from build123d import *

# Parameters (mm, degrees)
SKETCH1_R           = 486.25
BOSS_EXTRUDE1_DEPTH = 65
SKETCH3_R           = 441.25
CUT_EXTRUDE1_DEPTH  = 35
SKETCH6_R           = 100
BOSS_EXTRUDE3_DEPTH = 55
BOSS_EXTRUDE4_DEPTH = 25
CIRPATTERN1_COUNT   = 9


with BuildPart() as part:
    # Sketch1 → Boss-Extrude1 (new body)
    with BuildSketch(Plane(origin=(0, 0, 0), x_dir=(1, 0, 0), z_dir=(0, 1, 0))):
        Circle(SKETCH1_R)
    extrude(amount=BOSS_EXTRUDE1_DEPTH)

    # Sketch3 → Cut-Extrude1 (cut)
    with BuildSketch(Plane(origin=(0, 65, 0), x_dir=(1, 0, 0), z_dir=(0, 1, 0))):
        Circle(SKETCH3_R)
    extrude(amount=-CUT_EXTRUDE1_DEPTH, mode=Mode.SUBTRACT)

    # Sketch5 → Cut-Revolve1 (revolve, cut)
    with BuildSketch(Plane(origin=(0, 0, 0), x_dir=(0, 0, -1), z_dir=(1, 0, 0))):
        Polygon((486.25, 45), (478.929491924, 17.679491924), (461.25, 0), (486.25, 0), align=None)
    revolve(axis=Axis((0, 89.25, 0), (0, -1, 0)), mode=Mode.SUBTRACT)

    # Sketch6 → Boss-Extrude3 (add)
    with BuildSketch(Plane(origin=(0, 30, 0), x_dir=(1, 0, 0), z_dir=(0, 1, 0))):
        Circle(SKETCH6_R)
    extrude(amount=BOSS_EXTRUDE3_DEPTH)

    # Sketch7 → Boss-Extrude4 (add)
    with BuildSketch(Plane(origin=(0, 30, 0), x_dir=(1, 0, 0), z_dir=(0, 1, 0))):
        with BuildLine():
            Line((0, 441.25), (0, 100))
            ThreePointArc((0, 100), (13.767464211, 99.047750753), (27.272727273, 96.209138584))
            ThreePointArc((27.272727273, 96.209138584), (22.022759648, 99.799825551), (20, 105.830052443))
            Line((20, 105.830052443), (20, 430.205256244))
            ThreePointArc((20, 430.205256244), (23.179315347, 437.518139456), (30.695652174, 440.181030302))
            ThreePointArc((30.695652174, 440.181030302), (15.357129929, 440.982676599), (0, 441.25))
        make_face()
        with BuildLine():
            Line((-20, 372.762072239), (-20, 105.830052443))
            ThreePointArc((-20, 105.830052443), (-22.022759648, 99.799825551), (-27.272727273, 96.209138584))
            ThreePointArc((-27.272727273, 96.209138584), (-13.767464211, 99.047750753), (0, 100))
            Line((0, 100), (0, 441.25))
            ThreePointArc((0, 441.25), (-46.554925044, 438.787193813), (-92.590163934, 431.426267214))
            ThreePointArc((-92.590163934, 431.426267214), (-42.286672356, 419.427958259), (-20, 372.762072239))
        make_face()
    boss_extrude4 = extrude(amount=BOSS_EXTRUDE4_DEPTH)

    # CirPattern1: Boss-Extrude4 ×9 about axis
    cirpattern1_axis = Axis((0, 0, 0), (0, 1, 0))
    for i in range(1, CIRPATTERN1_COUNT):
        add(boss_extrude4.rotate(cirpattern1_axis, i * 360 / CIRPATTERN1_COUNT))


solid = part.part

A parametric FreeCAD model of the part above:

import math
import FreeCAD as App
import Part
import Sketcher
from FreeCAD import Vector
Q = App.Units.Quantity

doc = App.newDocument("Part")
body = doc.addObject("PartDesign::Body", "Body")

sketch1 = doc.addObject("Sketcher::SketchObject", "Sketch")
body.addObject(sketch1)
sketch1.AttachmentSupport = (doc.XZ_Plane, [""])
sketch1.MapMode = "FlatFace"
sketch1.addGeometry(Part.Circle(Vector(0, 0, 0), Vector(0, 0, 1), 486), False)
sketch1.addConstraint([
    Sketcher.Constraint("Coincident", 0, 3, -1, 1),
    Sketcher.Constraint("Diameter", 0, Q("972.5 mm")),
])
pad1 = doc.addObject("PartDesign::Pad", "Pad")
body.addObject(pad1)
pad1.Profile = sketch1
pad1.Length = 65
pad1.Reversed = True

sketch2 = doc.addObject("Sketcher::SketchObject", "Sketch001")
body.addObject(sketch2)
sketch2.AttachmentSupport = (doc.XZ_Plane, [""])
sketch2.MapMode = "FlatFace"
sketch2.AttachmentOffset = App.Placement(Vector(0, 0, -65), App.Rotation())
sketch2.addGeometry(Part.Circle(Vector(0, 0, 0), Vector(0, 0, 1), 441), False)
sketch2.addConstraint([
    Sketcher.Constraint("Coincident", 0, 3, -1, 1),
    Sketcher.Constraint("Diameter", 0, Q("882.5 mm")),
])
pocket1 = doc.addObject("PartDesign::Pocket", "Pocket")
body.addObject(pocket1)
pocket1.Profile = sketch2
pocket1.Length = 35
pocket1.Reversed = True

sketch3 = doc.addObject("Sketcher::SketchObject", "Sketch002")
body.addObject(sketch3)
sketch3.AttachmentSupport = (doc.YZ_Plane, [""])
sketch3.MapMode = "FlatFace"
sketch3.addGeometry([
    Part.LineSegment(Vector(45, -486, 0), Vector(18, -479, 0)),
    Part.LineSegment(Vector(18, -479, 0), Vector(0, -461, 0)),
    Part.LineSegment(Vector(0, -461, 0), Vector(0, -486, 0)),
    Part.LineSegment(Vector(0, -486, 0), Vector(45, -486, 0)),
], False)
sketch3.addConstraint([
    Sketcher.Constraint("Coincident", 0, 2, 1, 1),
    Sketcher.Constraint("Coincident", 1, 2, 2, 1),
    Sketcher.Constraint("Coincident", 2, 2, 3, 1),
    Sketcher.Constraint("Coincident", 3, 2, 0, 1),
    Sketcher.Constraint("Vertical", 2),
    Sketcher.Constraint("Horizontal", 3),
    Sketcher.Constraint("PointOnObject", 1, 2, -2),
    Sketcher.Constraint("DistanceX", 3, 1, 3, 2, Q("45 mm")),
    Sketcher.Constraint("DistanceY", 2, 2, 2, 1, Q("25 mm")),
    Sketcher.Constraint("Angle", 0, Q("165 deg")),
    Sketcher.Constraint("Angle", 1, Q("135 deg")),
    Sketcher.Constraint("DistanceY", 1, 2, -1, 1, Q("461.25 mm")),
])
groove = doc.addObject("PartDesign::Groove", "Groove")
body.addObject(groove)
groove.Profile = sketch3
groove.ReferenceAxis = (sketch3, ["H_Axis"])
groove.Angle = 360

sketch4 = doc.addObject("Sketcher::SketchObject", "Sketch003")
body.addObject(sketch4)
sketch4.AttachmentSupport = (doc.XZ_Plane, [""])
sketch4.MapMode = "FlatFace"
sketch4.AttachmentOffset = App.Placement(Vector(0, 0, -30), App.Rotation())
sketch4.addGeometry(Part.Circle(Vector(0, 0, 0), Vector(0, 0, 1), 100), False)
sketch4.addConstraint([
    Sketcher.Constraint("Coincident", 0, 3, -1, 1),
    Sketcher.Constraint("Diameter", 0, Q("200 mm")),
])
pad2 = doc.addObject("PartDesign::Pad", "Pad001")
body.addObject(pad2)
pad2.Profile = sketch4
pad2.Length = 55
pad2.Reversed = True

sketch5 = doc.addObject("Sketcher::SketchObject", "Sketch004")
body.addObject(sketch5)
sketch5.AttachmentSupport = (doc.XZ_Plane, [""])
sketch5.MapMode = "FlatFace"
sketch5.AttachmentOffset = App.Placement(Vector(0, 0, -30), App.Rotation())
sketch5.addGeometry([
    Part.ArcOfCircle(Part.Circle(Vector(0, 0, 0), Vector(0, 0, 1), 100), math.radians(-90), math.radians(-74.17)),
    Part.ArcOfCircle(Part.Circle(Vector(30, -106, 0), Vector(0, 0, 1), 10), math.radians(106), math.radians(180)),
    Part.LineSegment(Vector(20, -106, 0), Vector(20, -430, 0)),
    Part.ArcOfCircle(Part.Circle(Vector(30, -430, 0), Vector(0, 0, 1), 10), math.radians(180), math.radians(274)),
    Part.ArcOfCircle(Part.Circle(Vector(0, 0, 0), Vector(0, 0, 1), 441), math.radians(-90), math.radians(-86.01)),
    Part.ArcOfCircle(Part.Circle(Vector(0, 0, 0), Vector(0, 0, 1), 441), math.radians(-102.11), math.radians(-90)),
    Part.ArcOfCircle(Part.Circle(Vector(-80, -373, 0), Vector(0, 0, 1), 60), math.radians(-102), math.radians(0)),
    Part.LineSegment(Vector(-20, -373, 0), Vector(-20, -106, 0)),
    Part.ArcOfCircle(Part.Circle(Vector(-30, -106, 0), Vector(0, 0, 1), 10), math.radians(0), math.radians(74)),
    Part.ArcOfCircle(Part.Circle(Vector(0, 0, 0), Vector(0, 0, 1), 100), math.radians(-105.83), math.radians(-90)),
], False)
sketch5.addConstraint([
    Sketcher.Constraint("Tangent", 0, 2, 1, 1),
    Sketcher.Constraint("Tangent", 1, 2, 2, 1),
    Sketcher.Constraint("Tangent", 2, 2, 3, 1),
    Sketcher.Constraint("Tangent", 3, 2, 4, 2),
    Sketcher.Constraint("Tangent", 4, 1, 5, 2),
    Sketcher.Constraint("Tangent", 5, 1, 6, 1),
    Sketcher.Constraint("Tangent", 6, 2, 7, 1),
    Sketcher.Constraint("Tangent", 7, 2, 8, 1),
    Sketcher.Constraint("Tangent", 8, 2, 9, 1),
    Sketcher.Constraint("Tangent", 9, 2, 0, 1),
    Sketcher.Constraint("Vertical", 2),
    Sketcher.Constraint("Vertical", 7),
    Sketcher.Constraint("Coincident", 0, 3, -1, 1),
    Sketcher.Constraint("Coincident", 4, 3, -1, 1),
    Sketcher.Constraint("Equal", 1, 3),
    Sketcher.Constraint("Equal", 4, 5),
    Sketcher.Constraint("Equal", 3, 8),
    Sketcher.Constraint("Equal", 0, 9),
    Sketcher.Constraint("PointOnObject", 4, 1, -2),
    Sketcher.Constraint("PointOnObject", 9, 2, -2),
    Sketcher.Constraint("Horizontal", 1, 3, 8, 3),
    Sketcher.Constraint("Radius", 0, Q("100 mm")),
    Sketcher.Constraint("Radius", 1, Q("10 mm")),
    Sketcher.Constraint("Radius", 6, Q("60 mm")),
    Sketcher.Constraint("Radius", 4, Q("441.25 mm")),
    Sketcher.Constraint("DistanceX", -1, 1, 1, 3, Q("30 mm")),
])
pad3 = doc.addObject("PartDesign::Pad", "Pad002")
body.addObject(pad3)
pad3.Profile = sketch5
pad3.Length = 25
pad3.Reversed = True
doc.recompute()

polarpattern = doc.addObject("PartDesign::PolarPattern", "PolarPattern")
body.addObject(polarpattern)
polarpattern.Originals = [pad3]
polarpattern.Axis = (doc.Y_Axis, [""])
polarpattern.Angle = 360
polarpattern.Occurrences = 9
body.Tip = polarpattern

doc.recompute()
